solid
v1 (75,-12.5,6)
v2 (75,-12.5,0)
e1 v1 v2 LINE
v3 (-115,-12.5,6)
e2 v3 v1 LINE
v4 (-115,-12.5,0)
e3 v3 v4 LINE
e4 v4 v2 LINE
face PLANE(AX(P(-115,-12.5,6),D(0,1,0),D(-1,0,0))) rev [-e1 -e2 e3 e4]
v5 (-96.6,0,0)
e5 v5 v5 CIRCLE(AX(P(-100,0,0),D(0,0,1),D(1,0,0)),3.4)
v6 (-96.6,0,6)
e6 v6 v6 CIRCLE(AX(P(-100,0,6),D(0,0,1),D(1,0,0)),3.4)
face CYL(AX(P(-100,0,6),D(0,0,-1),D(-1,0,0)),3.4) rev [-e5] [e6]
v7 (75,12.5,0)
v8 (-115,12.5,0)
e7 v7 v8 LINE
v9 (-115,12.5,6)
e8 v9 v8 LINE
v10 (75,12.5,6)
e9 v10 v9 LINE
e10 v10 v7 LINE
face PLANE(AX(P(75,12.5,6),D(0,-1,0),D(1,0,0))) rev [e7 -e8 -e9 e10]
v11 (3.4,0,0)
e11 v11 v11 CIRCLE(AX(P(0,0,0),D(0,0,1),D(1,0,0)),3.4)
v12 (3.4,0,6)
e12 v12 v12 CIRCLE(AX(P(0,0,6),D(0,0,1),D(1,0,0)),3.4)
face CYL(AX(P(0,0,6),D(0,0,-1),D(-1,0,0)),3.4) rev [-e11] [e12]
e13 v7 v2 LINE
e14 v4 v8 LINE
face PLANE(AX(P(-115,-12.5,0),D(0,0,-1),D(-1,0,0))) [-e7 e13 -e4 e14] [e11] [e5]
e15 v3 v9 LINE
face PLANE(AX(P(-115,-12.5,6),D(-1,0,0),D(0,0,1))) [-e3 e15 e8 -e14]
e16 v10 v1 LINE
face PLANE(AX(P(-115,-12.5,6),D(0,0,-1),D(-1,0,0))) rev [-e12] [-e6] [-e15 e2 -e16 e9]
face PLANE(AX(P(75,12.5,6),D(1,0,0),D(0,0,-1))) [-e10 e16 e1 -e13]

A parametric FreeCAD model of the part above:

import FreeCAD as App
import Part
import Sketcher

doc = App.newDocument("Part")
body = doc.addObject("PartDesign::Body", "Body")

# Sketch on XY plane
sketch1 = body.newObject("Sketcher::SketchObject", "Sketch")
sketch1.AttachmentSupport = (doc.getObject("XY_Plane"), [""])
sketch1.MapMode = "FlatFace"
sketch1.addGeometry([
    Part.LineSegment(App.Vector(-115, 12.5, 0), App.Vector(-115, -12.5, 0)),  # 0
    Part.LineSegment(App.Vector(-115, -12.5, 0), App.Vector(75, -12.5, 0)),  # 1
    Part.LineSegment(App.Vector(75, -12.5, 0), App.Vector(75, 12.5, 0)),  # 2
    Part.LineSegment(App.Vector(75, 12.5, 0), App.Vector(-115, 12.5, 0)),  # 3
    Part.Circle(App.Vector(-100, 0, 0), App.Vector(0, 0, 1), 3.4),  # 4
    Part.Circle(App.Vector(0, 0, 0), App.Vector(0, 0, 1), 3.4),  # 5
], False)
sketch1.addConstraint([
    Sketcher.Constraint("Coincident", 0, 2, 1, 1),
    Sketcher.Constraint("Coincident", 1, 2, 2, 1),
    Sketcher.Constraint("Coincident", 2, 2, 3, 1),
    Sketcher.Constraint("Coincident", 3, 2, 0, 1),
    Sketcher.Constraint("Vertical", 0),
    Sketcher.Constraint("Horizontal", 1),
    Sketcher.Constraint("Vertical", 2),
    Sketcher.Constraint("Horizontal", 3),
    Sketcher.Constraint("Coincident", 5, 3, -1, 1),
    Sketcher.Constraint("Equal", 4, 5),
    Sketcher.Constraint("PointOnObject", 4, 3, -1),
    Sketcher.Constraint("Diameter", 4, 6.8),
    Sketcher.Constraint("DistanceX", 1, 1, 1, 2, 190.0),
    Sketcher.Constraint("DistanceY", 0, 2, 0, 1, 25.0),
    Sketcher.Constraint("DistanceX", 4, 3, -1, 1, 100.0),
    Sketcher.Constraint("DistanceX", 0, 2, -1, 1, 115.0),
    Sketcher.Constraint("DistanceY", 0, 2, -1, 1, 12.5),
])
pad1 = body.newObject("PartDesign::Pad", "Pad")
pad1.Profile = sketch1
pad1.Length = 6

# Sketch on XY plane
sketch2 = body.newObject("Sketcher::SketchObject", "Sketch001")
sketch2.AttachmentSupport = (doc.getObject("XY_Plane"), [""])
sketch2.MapMode = "FlatFace"
sketch2.AttachmentOffset = App.Placement(App.Vector(0, 0, 6), App.Rotation())
sketch2.addGeometry([
    Part.Circle(App.Vector(-100, 0, 0), App.Vector(0, 0, 1), 3.4),
    Part.Circle(App.Vector(0, 0, 0), App.Vector(0, 0, 1), 3.4),
], False)
sketch2.addConstraint([
    Sketcher.Constraint("Coincident", 1, 3, -1, 1),
    Sketcher.Constraint("Equal", 0, 1),
    Sketcher.Constraint("PointOnObject", 0, 3, -1),
    Sketcher.Constraint("Diameter", 0, 6.8),
    Sketcher.Constraint("DistanceX", 0, 3, -1, 1, 100.0),
])
doc.recompute()
hole = body.newObject("PartDesign::Hole", "Hole")
hole.Profile = sketch2
hole.ThreadType = "None"
hole.Diameter = 6.8
hole.DepthType = "Dimension"
hole.Depth = 22.25
hole.DrillPoint = "Angled"
hole.DrillPointAngle = 118

doc.recompute()
